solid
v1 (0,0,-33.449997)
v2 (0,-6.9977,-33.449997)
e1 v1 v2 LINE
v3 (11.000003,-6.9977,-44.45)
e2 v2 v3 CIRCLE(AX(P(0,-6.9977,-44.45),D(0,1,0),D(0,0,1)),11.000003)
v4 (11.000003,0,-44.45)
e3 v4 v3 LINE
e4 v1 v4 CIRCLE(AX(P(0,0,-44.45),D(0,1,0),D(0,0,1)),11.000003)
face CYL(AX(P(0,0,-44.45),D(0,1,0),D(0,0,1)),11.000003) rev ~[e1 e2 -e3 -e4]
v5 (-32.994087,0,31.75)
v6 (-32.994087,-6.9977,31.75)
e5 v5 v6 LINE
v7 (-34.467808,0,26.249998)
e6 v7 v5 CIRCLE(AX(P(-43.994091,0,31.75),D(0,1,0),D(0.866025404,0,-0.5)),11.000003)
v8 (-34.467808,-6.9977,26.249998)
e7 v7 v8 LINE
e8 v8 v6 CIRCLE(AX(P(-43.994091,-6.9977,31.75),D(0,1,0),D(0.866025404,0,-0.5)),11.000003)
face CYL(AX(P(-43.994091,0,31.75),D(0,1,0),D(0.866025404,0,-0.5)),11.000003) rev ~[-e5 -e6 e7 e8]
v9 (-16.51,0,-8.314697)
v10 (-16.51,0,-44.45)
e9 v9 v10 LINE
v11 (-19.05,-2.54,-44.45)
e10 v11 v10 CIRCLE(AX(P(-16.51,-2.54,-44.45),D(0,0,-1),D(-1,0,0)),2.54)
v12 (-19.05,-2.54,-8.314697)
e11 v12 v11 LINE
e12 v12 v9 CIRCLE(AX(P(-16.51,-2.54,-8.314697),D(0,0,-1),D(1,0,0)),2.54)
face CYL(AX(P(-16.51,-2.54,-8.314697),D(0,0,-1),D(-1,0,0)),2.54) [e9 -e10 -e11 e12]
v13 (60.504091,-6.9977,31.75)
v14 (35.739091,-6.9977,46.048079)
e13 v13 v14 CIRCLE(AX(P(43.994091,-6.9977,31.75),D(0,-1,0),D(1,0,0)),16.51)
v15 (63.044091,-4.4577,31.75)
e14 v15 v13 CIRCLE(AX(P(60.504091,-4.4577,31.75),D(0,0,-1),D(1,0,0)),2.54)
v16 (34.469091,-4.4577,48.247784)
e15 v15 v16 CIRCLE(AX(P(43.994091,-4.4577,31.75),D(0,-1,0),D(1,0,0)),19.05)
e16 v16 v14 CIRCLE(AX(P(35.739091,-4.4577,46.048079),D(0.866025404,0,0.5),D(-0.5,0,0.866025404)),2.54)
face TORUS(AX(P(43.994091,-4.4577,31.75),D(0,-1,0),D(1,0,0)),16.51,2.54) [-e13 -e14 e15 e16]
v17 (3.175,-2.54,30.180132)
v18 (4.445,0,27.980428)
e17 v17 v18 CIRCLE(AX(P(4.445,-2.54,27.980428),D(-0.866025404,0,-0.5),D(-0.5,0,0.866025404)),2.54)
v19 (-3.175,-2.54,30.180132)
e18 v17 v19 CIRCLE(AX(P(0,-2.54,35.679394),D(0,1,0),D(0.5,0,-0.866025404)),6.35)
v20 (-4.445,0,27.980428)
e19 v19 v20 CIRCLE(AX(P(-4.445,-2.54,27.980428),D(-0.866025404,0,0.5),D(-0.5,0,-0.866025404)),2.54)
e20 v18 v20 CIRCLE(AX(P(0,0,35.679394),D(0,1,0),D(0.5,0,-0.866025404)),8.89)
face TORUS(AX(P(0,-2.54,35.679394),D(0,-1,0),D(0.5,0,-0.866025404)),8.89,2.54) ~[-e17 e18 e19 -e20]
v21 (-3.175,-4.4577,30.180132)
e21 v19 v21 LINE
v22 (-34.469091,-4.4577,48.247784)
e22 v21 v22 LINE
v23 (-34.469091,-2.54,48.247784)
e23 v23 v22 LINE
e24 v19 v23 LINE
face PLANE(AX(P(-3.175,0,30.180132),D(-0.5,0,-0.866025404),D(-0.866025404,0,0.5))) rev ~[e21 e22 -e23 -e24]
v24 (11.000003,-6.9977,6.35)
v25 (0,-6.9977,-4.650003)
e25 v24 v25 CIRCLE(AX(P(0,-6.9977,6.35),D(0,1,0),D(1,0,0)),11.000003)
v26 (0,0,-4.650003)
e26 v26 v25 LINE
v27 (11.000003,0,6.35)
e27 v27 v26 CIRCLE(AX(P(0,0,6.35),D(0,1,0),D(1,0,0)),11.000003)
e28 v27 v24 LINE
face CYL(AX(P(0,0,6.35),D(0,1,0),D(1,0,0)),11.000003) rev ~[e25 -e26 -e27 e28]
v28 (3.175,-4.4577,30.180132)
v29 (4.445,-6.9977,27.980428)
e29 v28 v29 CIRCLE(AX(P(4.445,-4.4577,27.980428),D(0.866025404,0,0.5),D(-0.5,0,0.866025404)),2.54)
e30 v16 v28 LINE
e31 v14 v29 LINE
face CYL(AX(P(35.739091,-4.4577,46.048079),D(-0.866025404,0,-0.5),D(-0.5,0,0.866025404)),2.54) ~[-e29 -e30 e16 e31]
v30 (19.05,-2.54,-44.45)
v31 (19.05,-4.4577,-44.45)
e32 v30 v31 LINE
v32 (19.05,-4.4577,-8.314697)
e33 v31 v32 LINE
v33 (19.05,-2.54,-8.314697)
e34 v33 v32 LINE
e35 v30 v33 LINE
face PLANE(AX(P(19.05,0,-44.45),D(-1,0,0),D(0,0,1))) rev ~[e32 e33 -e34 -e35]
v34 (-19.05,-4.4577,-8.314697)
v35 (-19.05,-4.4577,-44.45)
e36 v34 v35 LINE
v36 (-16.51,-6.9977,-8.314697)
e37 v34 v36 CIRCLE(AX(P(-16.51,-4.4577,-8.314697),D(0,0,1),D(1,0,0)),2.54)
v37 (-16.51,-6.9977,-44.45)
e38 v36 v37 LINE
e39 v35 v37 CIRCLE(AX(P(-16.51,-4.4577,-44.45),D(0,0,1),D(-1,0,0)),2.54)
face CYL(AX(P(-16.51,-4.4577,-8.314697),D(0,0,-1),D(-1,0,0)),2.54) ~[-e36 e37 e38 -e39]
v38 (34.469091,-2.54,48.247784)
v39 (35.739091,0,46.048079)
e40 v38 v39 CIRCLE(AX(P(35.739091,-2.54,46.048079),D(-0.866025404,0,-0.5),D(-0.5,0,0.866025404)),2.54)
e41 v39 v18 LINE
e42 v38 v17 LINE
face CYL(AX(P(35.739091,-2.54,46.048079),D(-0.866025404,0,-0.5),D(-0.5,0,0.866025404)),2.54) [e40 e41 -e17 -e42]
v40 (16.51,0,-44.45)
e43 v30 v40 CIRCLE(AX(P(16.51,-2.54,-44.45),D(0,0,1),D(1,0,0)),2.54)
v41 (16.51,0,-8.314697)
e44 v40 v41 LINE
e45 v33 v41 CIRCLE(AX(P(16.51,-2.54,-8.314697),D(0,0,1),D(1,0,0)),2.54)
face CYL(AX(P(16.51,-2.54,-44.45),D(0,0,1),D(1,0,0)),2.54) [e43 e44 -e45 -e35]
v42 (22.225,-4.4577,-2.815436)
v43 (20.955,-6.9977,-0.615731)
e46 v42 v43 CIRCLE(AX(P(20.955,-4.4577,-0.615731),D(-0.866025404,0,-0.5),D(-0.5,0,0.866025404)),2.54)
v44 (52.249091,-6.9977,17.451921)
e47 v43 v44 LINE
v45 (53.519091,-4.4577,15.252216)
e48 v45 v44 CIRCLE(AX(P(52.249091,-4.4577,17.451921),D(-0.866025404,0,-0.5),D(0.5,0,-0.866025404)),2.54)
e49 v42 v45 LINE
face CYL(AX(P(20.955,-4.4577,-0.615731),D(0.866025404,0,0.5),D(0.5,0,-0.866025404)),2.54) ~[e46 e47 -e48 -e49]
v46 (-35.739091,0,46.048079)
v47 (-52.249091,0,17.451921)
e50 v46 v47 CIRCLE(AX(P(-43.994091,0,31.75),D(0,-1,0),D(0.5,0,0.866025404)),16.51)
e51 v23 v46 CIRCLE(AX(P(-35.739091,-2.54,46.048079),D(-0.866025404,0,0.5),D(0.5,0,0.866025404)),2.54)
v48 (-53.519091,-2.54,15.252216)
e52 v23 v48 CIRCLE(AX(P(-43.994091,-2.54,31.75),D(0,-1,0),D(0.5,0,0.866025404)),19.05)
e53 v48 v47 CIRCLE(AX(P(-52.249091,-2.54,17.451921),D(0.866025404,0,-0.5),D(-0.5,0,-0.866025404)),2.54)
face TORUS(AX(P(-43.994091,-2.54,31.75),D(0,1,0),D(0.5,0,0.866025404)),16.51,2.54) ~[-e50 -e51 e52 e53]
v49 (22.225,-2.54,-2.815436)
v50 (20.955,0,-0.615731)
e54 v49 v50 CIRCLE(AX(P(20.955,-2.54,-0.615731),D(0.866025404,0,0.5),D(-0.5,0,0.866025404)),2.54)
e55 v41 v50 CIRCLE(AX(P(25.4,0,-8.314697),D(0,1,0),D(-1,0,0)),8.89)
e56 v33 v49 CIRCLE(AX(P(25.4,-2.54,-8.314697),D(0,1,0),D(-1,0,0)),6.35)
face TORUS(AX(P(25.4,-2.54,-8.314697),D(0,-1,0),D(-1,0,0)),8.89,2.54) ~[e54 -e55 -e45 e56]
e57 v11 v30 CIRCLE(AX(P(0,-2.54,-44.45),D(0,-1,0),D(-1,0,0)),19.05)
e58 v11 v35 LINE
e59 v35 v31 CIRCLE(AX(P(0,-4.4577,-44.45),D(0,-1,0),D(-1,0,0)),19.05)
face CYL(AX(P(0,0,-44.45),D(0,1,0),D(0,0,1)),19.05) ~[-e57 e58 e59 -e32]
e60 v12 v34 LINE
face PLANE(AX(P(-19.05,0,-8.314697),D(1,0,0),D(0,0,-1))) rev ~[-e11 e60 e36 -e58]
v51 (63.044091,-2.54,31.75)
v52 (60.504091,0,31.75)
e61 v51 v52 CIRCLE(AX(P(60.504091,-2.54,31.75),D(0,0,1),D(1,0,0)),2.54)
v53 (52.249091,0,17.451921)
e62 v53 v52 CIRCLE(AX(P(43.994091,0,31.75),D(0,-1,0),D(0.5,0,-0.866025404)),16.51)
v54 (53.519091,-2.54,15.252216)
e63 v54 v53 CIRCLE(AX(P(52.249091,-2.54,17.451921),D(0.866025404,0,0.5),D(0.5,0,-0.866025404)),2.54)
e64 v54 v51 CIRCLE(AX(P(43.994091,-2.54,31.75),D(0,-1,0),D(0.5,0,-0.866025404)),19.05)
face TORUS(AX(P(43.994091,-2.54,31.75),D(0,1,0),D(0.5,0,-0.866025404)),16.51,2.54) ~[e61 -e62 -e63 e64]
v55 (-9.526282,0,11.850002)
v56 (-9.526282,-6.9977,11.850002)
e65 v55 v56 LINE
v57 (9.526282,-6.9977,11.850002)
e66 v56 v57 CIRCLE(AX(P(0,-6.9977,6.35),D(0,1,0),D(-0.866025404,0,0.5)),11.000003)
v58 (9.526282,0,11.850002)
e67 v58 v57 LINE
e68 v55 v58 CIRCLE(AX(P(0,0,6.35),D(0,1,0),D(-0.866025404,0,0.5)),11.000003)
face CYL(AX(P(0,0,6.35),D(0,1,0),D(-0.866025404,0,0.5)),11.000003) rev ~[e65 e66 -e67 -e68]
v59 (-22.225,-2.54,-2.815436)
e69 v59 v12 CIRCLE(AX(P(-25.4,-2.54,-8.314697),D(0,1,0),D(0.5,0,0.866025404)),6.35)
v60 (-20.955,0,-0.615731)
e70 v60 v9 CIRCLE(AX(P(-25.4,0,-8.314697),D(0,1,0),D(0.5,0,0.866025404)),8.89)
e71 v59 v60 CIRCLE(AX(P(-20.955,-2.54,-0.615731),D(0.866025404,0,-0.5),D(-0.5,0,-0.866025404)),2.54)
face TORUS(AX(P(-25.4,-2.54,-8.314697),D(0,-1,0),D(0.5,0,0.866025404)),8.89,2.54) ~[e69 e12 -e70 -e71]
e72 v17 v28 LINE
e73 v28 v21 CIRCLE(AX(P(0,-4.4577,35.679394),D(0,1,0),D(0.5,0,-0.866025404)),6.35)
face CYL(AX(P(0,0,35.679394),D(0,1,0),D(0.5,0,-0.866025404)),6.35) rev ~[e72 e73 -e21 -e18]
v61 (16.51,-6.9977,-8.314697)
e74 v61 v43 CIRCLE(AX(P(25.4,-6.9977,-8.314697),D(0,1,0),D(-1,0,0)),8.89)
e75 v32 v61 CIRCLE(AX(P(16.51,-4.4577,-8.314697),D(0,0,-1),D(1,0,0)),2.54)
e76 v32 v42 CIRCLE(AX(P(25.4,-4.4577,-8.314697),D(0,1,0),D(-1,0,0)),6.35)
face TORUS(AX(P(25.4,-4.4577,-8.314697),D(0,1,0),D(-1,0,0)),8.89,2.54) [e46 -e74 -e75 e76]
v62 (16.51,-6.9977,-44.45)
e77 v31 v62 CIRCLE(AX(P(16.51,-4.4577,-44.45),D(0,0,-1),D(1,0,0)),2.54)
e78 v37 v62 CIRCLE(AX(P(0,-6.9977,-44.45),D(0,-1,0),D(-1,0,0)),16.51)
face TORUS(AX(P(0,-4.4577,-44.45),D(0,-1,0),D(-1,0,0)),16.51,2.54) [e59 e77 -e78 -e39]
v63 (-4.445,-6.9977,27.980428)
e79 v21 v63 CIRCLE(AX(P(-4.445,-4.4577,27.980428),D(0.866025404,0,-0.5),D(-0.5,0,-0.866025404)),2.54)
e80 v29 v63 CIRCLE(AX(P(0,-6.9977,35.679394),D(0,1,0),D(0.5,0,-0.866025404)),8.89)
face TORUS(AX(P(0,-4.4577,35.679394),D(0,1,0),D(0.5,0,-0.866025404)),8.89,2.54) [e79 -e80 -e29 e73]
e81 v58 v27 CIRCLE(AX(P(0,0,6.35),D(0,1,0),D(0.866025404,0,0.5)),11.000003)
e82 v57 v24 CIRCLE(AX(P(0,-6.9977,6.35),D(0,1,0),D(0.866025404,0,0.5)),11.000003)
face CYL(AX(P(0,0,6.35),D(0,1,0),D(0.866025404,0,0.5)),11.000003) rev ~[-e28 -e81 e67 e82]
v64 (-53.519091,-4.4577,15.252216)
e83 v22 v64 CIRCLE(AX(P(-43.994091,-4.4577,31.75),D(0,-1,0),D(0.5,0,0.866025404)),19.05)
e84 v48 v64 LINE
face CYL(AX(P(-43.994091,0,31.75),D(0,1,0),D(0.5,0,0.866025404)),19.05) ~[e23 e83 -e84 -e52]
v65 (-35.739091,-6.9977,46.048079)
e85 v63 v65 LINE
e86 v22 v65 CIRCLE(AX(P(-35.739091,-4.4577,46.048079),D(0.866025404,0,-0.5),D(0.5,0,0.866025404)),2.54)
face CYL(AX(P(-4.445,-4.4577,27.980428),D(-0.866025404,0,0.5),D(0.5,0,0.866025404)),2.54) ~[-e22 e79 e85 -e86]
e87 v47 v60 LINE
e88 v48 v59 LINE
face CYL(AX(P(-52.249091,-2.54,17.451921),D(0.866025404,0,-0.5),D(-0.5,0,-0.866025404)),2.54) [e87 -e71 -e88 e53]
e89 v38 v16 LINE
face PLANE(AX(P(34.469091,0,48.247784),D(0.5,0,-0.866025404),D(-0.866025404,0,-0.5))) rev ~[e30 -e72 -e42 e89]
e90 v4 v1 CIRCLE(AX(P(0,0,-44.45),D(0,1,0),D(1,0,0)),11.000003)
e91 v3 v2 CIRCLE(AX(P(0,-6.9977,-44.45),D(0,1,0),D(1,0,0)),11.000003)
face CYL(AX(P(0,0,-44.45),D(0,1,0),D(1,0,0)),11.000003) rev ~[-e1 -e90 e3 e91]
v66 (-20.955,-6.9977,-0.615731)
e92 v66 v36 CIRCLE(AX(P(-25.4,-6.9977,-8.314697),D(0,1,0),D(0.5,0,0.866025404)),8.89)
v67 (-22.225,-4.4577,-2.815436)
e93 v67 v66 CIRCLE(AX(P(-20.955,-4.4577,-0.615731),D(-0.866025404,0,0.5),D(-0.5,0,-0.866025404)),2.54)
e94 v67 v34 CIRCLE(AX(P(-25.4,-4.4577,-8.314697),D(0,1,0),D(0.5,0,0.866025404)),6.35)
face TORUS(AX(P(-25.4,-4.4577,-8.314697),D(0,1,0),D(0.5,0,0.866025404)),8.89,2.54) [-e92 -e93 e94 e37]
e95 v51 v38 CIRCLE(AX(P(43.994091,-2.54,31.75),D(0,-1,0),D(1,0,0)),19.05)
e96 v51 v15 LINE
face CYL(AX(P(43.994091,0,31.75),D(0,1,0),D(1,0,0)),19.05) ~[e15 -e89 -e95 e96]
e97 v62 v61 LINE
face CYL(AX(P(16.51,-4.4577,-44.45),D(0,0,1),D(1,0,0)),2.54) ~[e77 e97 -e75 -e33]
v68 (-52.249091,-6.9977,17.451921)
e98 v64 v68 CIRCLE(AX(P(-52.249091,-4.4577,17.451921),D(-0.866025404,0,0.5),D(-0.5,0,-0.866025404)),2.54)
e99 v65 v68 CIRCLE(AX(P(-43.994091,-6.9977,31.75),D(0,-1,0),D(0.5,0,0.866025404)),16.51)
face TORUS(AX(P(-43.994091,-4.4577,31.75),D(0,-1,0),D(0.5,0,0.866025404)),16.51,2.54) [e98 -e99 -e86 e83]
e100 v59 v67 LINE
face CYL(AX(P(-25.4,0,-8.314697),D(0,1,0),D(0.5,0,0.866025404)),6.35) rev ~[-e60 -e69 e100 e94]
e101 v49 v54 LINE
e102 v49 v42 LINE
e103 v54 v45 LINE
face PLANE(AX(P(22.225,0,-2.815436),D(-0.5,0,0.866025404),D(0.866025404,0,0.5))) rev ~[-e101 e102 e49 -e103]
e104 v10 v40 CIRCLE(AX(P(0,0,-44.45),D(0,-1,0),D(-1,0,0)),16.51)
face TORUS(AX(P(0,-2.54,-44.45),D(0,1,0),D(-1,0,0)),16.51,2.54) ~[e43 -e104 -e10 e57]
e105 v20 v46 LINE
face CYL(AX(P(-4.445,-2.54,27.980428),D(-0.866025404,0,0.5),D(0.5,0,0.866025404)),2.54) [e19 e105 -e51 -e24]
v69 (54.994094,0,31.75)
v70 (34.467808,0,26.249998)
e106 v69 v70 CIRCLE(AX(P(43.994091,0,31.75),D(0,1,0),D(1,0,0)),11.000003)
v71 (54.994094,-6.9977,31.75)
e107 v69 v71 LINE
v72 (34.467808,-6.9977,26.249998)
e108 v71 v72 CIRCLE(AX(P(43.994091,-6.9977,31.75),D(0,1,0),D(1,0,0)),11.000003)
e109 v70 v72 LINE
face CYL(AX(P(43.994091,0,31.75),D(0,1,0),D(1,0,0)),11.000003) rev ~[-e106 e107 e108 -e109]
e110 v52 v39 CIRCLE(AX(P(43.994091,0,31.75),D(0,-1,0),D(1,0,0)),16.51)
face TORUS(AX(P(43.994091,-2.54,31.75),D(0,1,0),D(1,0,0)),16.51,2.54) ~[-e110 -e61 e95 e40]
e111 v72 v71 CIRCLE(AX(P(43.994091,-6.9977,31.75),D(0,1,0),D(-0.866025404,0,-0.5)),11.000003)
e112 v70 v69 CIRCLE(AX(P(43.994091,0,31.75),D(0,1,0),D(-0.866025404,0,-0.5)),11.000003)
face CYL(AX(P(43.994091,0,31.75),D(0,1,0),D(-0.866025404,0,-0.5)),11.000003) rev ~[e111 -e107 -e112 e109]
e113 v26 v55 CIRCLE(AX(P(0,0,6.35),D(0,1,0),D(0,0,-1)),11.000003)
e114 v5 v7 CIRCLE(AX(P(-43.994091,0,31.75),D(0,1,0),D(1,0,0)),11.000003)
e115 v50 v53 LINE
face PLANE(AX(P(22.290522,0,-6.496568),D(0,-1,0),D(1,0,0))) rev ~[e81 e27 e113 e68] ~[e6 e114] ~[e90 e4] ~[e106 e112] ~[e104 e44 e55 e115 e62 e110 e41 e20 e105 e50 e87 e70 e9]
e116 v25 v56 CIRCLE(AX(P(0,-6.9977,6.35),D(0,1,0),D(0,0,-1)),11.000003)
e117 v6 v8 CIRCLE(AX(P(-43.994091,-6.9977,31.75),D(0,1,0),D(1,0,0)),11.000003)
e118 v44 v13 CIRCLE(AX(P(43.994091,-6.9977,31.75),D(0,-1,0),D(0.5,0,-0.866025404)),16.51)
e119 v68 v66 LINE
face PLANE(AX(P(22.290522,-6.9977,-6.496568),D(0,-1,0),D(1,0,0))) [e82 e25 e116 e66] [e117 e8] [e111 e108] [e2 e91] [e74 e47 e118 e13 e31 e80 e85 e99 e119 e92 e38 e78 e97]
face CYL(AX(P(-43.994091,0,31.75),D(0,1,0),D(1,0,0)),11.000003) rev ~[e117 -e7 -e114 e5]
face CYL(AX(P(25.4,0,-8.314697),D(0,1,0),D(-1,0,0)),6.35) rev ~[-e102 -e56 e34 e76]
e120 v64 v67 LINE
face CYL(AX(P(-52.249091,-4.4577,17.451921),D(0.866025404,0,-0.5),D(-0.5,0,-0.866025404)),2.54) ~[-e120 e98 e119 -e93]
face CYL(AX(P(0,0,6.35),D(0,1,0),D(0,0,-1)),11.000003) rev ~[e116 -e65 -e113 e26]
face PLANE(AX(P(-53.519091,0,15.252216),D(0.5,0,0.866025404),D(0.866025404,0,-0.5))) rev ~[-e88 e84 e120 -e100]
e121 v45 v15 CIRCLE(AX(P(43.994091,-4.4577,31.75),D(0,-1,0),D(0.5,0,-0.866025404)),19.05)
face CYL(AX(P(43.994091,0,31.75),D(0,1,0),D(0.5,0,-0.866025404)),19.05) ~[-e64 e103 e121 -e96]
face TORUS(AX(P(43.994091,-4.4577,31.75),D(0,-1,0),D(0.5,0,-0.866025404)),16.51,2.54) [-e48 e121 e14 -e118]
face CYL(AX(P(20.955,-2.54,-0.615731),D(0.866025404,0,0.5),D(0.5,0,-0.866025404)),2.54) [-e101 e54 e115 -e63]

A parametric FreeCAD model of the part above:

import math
import FreeCAD as App
import Part
import Sketcher
Q = App.Units.Quantity


def edges_at(feature, points):
    """Names of the edges that pass closest to the given points."""
    edges = feature.Shape.Edges
    near = lambda p: min(range(len(edges)), key=lambda i: edges[i].distToShape(Part.Vertex(*p))[0])
    return sorted({f"Edge{near(p) + 1}" for p in points})

doc = App.newDocument("Part")
body = doc.addObject("PartDesign::Body", "Body")

# Sketch on XZ plane
sketch1 = body.newObject("Sketcher::SketchObject", "Sketch")
sketch1.AttachmentSupport = (doc.getObject("XZ_Plane"), [""])
sketch1.MapMode = "FlatFace"
sketch1.addGeometry([
    Part.LineSegment(App.Vector(19, -44, 0), App.Vector(19, -8, 0)),  # 0
    Part.ArcOfCircle(Part.Circle(App.Vector(25, -8, 0), App.Vector(0, 0, 1), 6), math.radians(120), math.radians(180)),  # 1
    Part.LineSegment(App.Vector(22, -3, 0), App.Vector(54, 15, 0)),  # 2
    Part.ArcOfCircle(Part.Circle(App.Vector(44, 32, 0), App.Vector(0, 0, 1), 19), math.radians(-60), math.radians(0)),  # 3
    Part.ArcOfCircle(Part.Circle(App.Vector(44, 32, 0), App.Vector(0, 0, 1), 19), math.radians(0), math.radians(120)),  # 4
    Part.LineSegment(App.Vector(34, 48, 0), App.Vector(3, 30, 0)),  # 5
    Part.ArcOfCircle(Part.Circle(App.Vector(0, 36, 0), App.Vector(0, 0, 1), 6), math.radians(-120), math.radians(-60)),  # 6
    Part.LineSegment(App.Vector(-3, 30, 0), App.Vector(-34, 48, 0)),  # 7
    Part.ArcOfCircle(Part.Circle(App.Vector(-44, 32, 0), App.Vector(0, 0, 1), 19), math.radians(60), math.radians(240)),  # 8
    Part.LineSegment(App.Vector(-54, 15, 0), App.Vector(-22, -3, 0)),  # 9
    Part.ArcOfCircle(Part.Circle(App.Vector(-25, -8, 0), App.Vector(0, 0, 1), 6), math.radians(0), math.radians(60)),  # 10
    Part.LineSegment(App.Vector(-19, -8, 0), App.Vector(-19, -44, 0)),  # 11
    Part.ArcOfCircle(Part.Circle(App.Vector(0, -44, 0), App.Vector(0, 0, 1), 19), math.radians(180), math.radians(360)),  # 12
    Part.ArcOfCircle(Part.Circle(App.Vector(0, -44, 0), App.Vector(0, 0, 1), 11), math.radians(0), math.radians(90)),  # 13
    Part.ArcOfCircle(Part.Circle(App.Vector(0, -44, 0), App.Vector(0, 0, 1), 11), math.radians(90), math.radians(360)),  # 14
    Part.ArcOfCircle(Part.Circle(App.Vector(-44, 32, 0), App.Vector(0, 0, 1), 11), math.radians(0), math.radians(330)),  # 15
    Part.ArcOfCircle(Part.Circle(App.Vector(-44, 32, 0), App.Vector(0, 0, 1), 11), math.radians(-30), math.radians(0)),  # 16
    Part.ArcOfCircle(Part.Circle(App.Vector(0, 6, 0), App.Vector(0, 0, 1), 11), math.radians(150), math.radians(270)),  # 17
    Part.ArcOfCircle(Part.Circle(App.Vector(0, 6, 0), App.Vector(0, 0, 1), 11), math.radians(30), math.radians(150)),  # 18
    Part.ArcOfCircle(Part.Circle(App.Vector(0, 6, 0), App.Vector(0, 0, 1), 11), math.radians(0), math.radians(30)),  # 19
    Part.ArcOfCircle(Part.Circle(App.Vector(0, 6, 0), App.Vector(0, 0, 1), 11), math.radians(-90), math.radians(0)),  # 20
    Part.ArcOfCircle(Part.Circle(App.Vector(44, 32, 0), App.Vector(0, 0, 1), 11), math.radians(0), math.radians(210)),  # 21
    Part.ArcOfCircle(Part.Circle(App.Vector(44, 32, 0), App.Vector(0, 0, 1), 11), math.radians(-150), math.radians(0)),  # 22
], False)
sketch1.addConstraint([
    Sketcher.Constraint("Tangent", 0, 2, 1, 2),
    Sketcher.Constraint("Tangent", 1, 1, 2, 1),
    Sketcher.Constraint("Tangent", 2, 2, 3, 1),
    Sketcher.Constraint("Tangent", 3, 2, 4, 1),
    Sketcher.Constraint("Tangent", 4, 2, 5, 1),
    Sketcher.Constraint("Tangent", 5, 2, 6, 2),
    Sketcher.Constraint("Tangent", 6, 1, 7, 1),
    Sketcher.Constraint("Tangent", 7, 2, 8, 1),
    Sketcher.Constraint("Tangent", 8, 2, 9, 1),
    Sketcher.Constraint("Tangent", 9, 2, 10, 2),
    Sketcher.Constraint("Tangent", 10, 1, 11, 1),
    Sketcher.Constraint("Tangent", 11, 2, 12, 1),
    Sketcher.Constraint("Tangent", 12, 2, 0, 1),
    Sketcher.Constraint("Tangent", 13, 1, 14, 2),
    Sketcher.Constraint("Coincident", 14, 1, 13, 2),
    Sketcher.Constraint("Tangent", 15, 1, 16, 2),
    Sketcher.Constraint("Coincident", 16, 1, 15, 2),
    Sketcher.Constraint("Tangent", 17, 1, 18, 2),
    Sketcher.Constraint("Tangent", 18, 1, 19, 2),
    Sketcher.Constraint("Tangent", 19, 1, 20, 2),
    Sketcher.Constraint("Tangent", 20, 1, 17, 2),
    Sketcher.Constraint("Tangent", 21, 1, 22, 2),
    Sketcher.Constraint("Coincident", 22, 1, 21, 2),
    Sketcher.Constraint("Vertical", 0),
    Sketcher.Constraint("Vertical", 11),
    Sketcher.Constraint("Coincident", 13, 3, 12, 3),
    Sketcher.Constraint("Coincident", 15, 3, 8, 3),
    Sketcher.Constraint("Coincident", 21, 3, 3, 3),
    Sketcher.Constraint("Equal", 3, 4),
    Sketcher.Constraint("Equal", 1, 6),
    Sketcher.Constraint("Equal", 4, 8),
    Sketcher.Constraint("Equal", 6, 10),
    Sketcher.Constraint("Equal", 8, 12),
    Sketcher.Constraint("Equal", 14, 15),
    Sketcher.Constraint("Equal", 16, 17),
    Sketcher.Constraint("Equal", 17, 18),
    Sketcher.Constraint("Equal", 20, 21),
    Sketcher.Constraint("Symmetric", 3, 3, 8, 3, -2),
    Sketcher.Constraint("Symmetric", 1, 3, 10, 3, -2),
    Sketcher.Constraint("Symmetric", 17, 1, 18, 1, -2),
    Sketcher.Constraint("PointOnObject", 6, 3, -2),
    Sketcher.Constraint("PointOnObject", 14, 1, -2),
    Sketcher.Constraint("PointOnObject", 20, 1, -2),
    Sketcher.Constraint("Parallel", 2, 5),
    Sketcher.Constraint("Horizontal", 22, 3, 3, 2),
    Sketcher.Constraint("Horizontal", 12, 2, 13, 1),
    Sketcher.Constraint("Horizontal", 3, 2, 15, 1),
    Sketcher.Constraint("Horizontal", 20, 3, 19, 1),
    Sketcher.Constraint("Horizontal", 15, 1, 21, 1),
    Sketcher.Constraint("Horizontal", 16, 1, 22, 1),
    Sketcher.Constraint("Equal", 2, 5),
    Sketcher.Constraint("Radius", 1, Q("0.25 in")),
    Sketcher.Constraint("Radius", 3, Q("0.75 in")),
    Sketcher.Constraint("DistanceY", 12, 3, 3, 3, Q("3 in")),
    Sketcher.Constraint("DistanceY", 17, 3, 3, 3, Q("1 in")),
    Sketcher.Constraint("DistanceY", -1, 1, 3, 3, Q("1.25 in")),
    Sketcher.Constraint("Radius", 13, Q("11.000003 mm")),
    Sketcher.Constraint("DistanceY", -1, 1, 16, 1, Q("26.249998 mm")),
    Sketcher.Constraint("DistanceY", -1, 1, 17, 1, Q("11.850002 mm")),
    Sketcher.Constraint("DistanceY", 0, 1, 0, 2, Q("36.135303 mm")),
])
pad1 = body.newObject("PartDesign::Pad", "Pad")
pad1.Profile = sketch1
pad1.Length = Q("0.2755 in")
doc.recompute()

fillet = body.newObject("PartDesign::Fillet", "Fillet")
fillet.Base = (pad1, edges_at(pad1, [(0, -6.998, -63.5), (0, 0, -63.5)]))
fillet.Radius = Q("0.1 in")

doc.recompute()
